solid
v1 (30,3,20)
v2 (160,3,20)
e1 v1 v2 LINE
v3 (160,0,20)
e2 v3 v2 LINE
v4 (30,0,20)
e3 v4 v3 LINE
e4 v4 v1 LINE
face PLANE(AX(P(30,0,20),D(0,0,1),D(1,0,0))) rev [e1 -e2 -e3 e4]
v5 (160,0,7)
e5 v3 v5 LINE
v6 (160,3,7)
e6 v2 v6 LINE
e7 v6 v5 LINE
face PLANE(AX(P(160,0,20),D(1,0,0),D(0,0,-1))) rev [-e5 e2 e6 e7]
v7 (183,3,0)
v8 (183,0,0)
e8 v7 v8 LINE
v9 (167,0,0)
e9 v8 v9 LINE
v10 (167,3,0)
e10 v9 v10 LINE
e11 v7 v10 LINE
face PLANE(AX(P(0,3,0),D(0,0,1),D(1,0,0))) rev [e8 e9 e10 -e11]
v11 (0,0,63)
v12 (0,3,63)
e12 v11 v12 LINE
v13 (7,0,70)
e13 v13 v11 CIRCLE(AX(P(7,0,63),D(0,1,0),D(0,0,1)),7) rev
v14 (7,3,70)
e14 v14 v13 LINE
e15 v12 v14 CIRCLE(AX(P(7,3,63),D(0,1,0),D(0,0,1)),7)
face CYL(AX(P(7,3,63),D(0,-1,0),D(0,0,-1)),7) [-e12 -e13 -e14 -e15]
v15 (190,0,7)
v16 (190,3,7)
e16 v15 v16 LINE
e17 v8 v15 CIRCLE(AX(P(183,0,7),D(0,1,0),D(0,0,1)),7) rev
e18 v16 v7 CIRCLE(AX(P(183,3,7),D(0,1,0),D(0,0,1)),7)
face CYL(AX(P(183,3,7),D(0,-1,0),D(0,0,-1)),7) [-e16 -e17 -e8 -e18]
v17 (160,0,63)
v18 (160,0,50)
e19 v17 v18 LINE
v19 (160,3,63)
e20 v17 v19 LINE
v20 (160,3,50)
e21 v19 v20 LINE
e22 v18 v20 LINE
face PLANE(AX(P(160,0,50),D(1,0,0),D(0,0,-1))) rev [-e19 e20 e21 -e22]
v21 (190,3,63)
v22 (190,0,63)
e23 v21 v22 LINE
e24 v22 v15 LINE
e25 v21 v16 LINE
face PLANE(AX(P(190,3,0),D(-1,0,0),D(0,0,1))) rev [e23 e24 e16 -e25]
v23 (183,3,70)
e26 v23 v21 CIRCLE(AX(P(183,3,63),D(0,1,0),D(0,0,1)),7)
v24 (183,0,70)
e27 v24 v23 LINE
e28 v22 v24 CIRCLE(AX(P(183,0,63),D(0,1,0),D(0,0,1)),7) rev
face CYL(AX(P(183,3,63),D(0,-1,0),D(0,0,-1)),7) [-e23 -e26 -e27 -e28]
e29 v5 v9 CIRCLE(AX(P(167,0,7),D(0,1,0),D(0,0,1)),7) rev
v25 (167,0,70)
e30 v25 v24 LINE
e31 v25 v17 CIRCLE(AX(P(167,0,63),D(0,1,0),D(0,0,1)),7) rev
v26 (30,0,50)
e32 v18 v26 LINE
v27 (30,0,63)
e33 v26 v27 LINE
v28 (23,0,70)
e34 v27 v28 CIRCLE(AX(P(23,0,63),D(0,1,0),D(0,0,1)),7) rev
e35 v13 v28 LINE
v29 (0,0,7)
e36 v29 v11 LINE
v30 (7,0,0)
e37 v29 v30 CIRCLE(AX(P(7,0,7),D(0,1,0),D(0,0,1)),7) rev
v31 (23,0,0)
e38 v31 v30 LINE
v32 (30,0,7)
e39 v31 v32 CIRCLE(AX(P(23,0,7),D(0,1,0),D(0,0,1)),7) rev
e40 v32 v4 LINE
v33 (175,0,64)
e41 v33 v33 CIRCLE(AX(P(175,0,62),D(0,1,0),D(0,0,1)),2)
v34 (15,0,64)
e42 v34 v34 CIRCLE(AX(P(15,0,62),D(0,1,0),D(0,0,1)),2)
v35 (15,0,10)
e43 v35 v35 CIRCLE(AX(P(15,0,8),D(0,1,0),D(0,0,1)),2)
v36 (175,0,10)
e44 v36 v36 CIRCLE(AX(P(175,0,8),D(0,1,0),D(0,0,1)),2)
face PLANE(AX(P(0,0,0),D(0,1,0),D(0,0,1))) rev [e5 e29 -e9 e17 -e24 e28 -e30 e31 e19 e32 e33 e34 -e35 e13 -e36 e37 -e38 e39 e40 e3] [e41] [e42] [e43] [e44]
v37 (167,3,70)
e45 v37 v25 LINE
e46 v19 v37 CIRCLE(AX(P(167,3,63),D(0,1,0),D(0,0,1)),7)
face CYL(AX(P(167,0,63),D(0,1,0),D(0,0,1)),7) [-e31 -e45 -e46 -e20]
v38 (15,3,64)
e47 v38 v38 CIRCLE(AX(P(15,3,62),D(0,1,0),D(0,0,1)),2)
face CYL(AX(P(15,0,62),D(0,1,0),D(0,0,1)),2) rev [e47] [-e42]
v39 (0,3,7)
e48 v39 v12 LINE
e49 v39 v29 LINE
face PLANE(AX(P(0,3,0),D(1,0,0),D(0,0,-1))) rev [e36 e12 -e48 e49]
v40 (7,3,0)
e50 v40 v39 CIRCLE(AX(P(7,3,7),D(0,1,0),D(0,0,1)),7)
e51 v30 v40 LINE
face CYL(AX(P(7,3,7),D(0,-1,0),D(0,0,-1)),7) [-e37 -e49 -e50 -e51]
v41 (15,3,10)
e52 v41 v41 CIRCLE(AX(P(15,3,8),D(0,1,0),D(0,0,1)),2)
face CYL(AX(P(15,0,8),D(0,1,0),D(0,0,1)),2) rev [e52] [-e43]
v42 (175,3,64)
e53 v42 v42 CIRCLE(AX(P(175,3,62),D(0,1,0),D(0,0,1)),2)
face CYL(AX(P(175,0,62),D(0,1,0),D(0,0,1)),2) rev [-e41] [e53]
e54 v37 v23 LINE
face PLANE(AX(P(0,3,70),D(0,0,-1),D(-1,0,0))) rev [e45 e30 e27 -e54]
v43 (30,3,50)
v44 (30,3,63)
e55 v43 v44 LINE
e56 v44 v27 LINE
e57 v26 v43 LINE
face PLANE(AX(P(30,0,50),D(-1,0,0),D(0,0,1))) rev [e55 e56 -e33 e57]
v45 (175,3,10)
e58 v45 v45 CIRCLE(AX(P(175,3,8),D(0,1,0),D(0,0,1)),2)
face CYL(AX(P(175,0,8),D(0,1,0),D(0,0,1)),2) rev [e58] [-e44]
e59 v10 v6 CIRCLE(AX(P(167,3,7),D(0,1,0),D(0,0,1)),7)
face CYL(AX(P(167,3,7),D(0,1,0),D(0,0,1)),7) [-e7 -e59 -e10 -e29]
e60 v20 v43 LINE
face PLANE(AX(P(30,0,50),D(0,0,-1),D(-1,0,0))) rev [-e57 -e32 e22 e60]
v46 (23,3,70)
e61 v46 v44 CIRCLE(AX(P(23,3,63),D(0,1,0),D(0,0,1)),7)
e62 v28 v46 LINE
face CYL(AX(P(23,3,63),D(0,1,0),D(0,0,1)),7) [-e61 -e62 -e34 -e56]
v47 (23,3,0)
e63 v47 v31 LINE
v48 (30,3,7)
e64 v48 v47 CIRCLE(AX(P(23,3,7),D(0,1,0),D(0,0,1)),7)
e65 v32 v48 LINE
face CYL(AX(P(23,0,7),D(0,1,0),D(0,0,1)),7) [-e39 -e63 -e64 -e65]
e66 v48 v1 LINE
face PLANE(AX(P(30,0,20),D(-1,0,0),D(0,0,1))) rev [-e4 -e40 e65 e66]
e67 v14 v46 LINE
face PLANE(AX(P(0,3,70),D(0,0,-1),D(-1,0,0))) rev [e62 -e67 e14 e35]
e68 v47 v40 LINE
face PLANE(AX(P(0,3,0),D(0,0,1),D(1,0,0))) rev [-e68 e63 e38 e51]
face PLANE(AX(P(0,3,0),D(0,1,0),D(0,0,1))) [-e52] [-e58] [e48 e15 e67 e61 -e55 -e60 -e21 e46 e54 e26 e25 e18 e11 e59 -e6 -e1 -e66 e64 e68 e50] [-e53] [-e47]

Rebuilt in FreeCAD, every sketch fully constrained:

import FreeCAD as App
import Part
import Sketcher

V = App.Vector
Q = App.Units.Quantity


def edges_at(feature, points):
    """Names of the edges that pass closest to the given points."""
    edges = feature.Shape.Edges
    near = lambda p: min(range(len(edges)), key=lambda i: edges[i].distToShape(Part.Vertex(*p))[0])
    return sorted({f"Edge{near(p) + 1}" for p in points})


def add_polygon(sketch, points):
    """Adds a closed chain of lines whose ends are joined by coincident constraints."""
    first, n = sketch.GeometryCount, len(points)
    for a, b in zip(points, points[1:] + points[:1]):
        sketch.addGeometry(Part.LineSegment(App.Vector(*a, 0), App.Vector(*b, 0)), False)
    for i in range(n):
        sketch.addConstraint(Sketcher.Constraint("Coincident", first + i, 2, first + (i + 1) % n, 1))

doc = App.newDocument("Part")
body = doc.addObject("PartDesign::Body", "Body")

# Sketch on XZ plane
sketch1 = body.newObject("Sketcher::SketchObject", "Sketch")
sketch1.AttachmentSupport = (doc.getObject("XZ_Plane"), [""])
sketch1.MapMode = "FlatFace"
add_polygon(sketch1, [(0, 0), (0, 70), (190, 70), (190, 0)])  # lines 0-3
sketch1.addConstraint([
    Sketcher.Constraint("Vertical", 0),
    Sketcher.Constraint("Horizontal", 1),
    Sketcher.Constraint("Vertical", 2),
    Sketcher.Constraint("Horizontal", 3),
    Sketcher.Constraint("Coincident", 3, 2, -1, 1),
    Sketcher.Constraint("DistanceX", 1, 1, 1, 2, Q("190 mm")),
    Sketcher.Constraint("DistanceY", 0, 1, 0, 2, Q("70 mm")),
])
pad1 = body.newObject("PartDesign::Pad", "Pad")
pad1.Profile = sketch1
pad1.Length = 3
pad1.Reversed = True

# Sketch on XZ plane
sketch2 = body.newObject("Sketcher::SketchObject", "Sketch001")
sketch2.AttachmentSupport = (doc.getObject("XZ_Plane"), [""])
sketch2.MapMode = "FlatFace"
sketch2.AttachmentOffset = App.Placement(V(0, 0, -3), App.Rotation())
sketch2.addGeometry(Part.Circle(V(15, 8, 0), V(0, 0, 1), 2), False)  # 0
sketch2.addGeometry(Part.Circle(V(175, 8, 0), V(0, 0, 1), 2), False)  # 1
sketch2.addGeometry(Part.Circle(V(175, 62, 0), V(0, 0, 1), 2), False)  # 2
sketch2.addGeometry(Part.Circle(V(15, 62, 0), V(0, 0, 1), 2), False)  # 3
add_polygon(sketch2, [(30, 0), (30, 20), (160, 20), (160, 0)])  # lines 4-7
add_polygon(sketch2, [(30, 50), (30, 70), (160, 70), (160, 50)])  # lines 8-11
sketch2.addConstraint([
    Sketcher.Constraint("Vertical", 4),
    Sketcher.Constraint("Horizontal", 5),
    Sketcher.Constraint("Vertical", 6),
    Sketcher.Constraint("Horizontal", 7),
    Sketcher.Constraint("Vertical", 8),
    Sketcher.Constraint("Horizontal", 9),
    Sketcher.Constraint("Vertical", 10),
    Sketcher.Constraint("Horizontal", 11),
    Sketcher.Constraint("Equal", 0, 1),
    Sketcher.Constraint("Equal", 1, 2),
    Sketcher.Constraint("Equal", 2, 3),
    Sketcher.Constraint("PointOnObject", 6, 2, -1),
    Sketcher.Constraint("Horizontal", 0, 3, 1, 3),
    Sketcher.Constraint("Horizontal", 2, 3, 3, 3),
    Sketcher.Constraint("Vertical", 1, 3, 2, 3),
    Sketcher.Constraint("Vertical", 0, 3, 3, 3),
    Sketcher.Constraint("Vertical", 7, 2, 8, 2),
    Sketcher.Constraint("Vertical", 6, 2, 9, 2),
    Sketcher.Constraint("Equal", 6, 8),
    Sketcher.Constraint("Diameter", 0, Q("4 mm")),
    Sketcher.Constraint("DistanceX", 5, 1, 5, 2, Q("130 mm")),
    Sketcher.Constraint("DistanceY", 4, 1, 4, 2, Q("20 mm")),
    Sketcher.Constraint("DistanceX", -1, 1, 0, 3, Q("15 mm")),
    Sketcher.Constraint("DistanceY", -1, 1, 0, 3, Q("8 mm")),
    Sketcher.Constraint("DistanceX", -1, 1, 1, 3, Q("175 mm")),
    Sketcher.Constraint("DistanceY", -1, 1, 2, 3, Q("62 mm")),
    Sketcher.Constraint("DistanceX", -1, 1, 4, 2, Q("30 mm")),
    Sketcher.Constraint("DistanceY", -1, 1, 8, 2, Q("70 mm")),
])
pocket1 = body.newObject("PartDesign::Pocket", "Pocket")
pocket1.Profile = sketch2
pocket1.Length = 3
pocket1.Reversed = True
doc.recompute()

fillet = body.newObject("PartDesign::Fillet", "Fillet")
fillet.Base = (pocket1, edges_at(pocket1, [
    (30, 1.5, 70),
    (160, 1.5, 70),
    (30, 1.5, 0),
    (160, 1.5, 0),
    (0, 1.5, 0),
    (190, 1.5, 0),
    (190, 1.5, 70),
    (0, 1.5, 70),
]))
fillet.Radius = 7

doc.recompute()
